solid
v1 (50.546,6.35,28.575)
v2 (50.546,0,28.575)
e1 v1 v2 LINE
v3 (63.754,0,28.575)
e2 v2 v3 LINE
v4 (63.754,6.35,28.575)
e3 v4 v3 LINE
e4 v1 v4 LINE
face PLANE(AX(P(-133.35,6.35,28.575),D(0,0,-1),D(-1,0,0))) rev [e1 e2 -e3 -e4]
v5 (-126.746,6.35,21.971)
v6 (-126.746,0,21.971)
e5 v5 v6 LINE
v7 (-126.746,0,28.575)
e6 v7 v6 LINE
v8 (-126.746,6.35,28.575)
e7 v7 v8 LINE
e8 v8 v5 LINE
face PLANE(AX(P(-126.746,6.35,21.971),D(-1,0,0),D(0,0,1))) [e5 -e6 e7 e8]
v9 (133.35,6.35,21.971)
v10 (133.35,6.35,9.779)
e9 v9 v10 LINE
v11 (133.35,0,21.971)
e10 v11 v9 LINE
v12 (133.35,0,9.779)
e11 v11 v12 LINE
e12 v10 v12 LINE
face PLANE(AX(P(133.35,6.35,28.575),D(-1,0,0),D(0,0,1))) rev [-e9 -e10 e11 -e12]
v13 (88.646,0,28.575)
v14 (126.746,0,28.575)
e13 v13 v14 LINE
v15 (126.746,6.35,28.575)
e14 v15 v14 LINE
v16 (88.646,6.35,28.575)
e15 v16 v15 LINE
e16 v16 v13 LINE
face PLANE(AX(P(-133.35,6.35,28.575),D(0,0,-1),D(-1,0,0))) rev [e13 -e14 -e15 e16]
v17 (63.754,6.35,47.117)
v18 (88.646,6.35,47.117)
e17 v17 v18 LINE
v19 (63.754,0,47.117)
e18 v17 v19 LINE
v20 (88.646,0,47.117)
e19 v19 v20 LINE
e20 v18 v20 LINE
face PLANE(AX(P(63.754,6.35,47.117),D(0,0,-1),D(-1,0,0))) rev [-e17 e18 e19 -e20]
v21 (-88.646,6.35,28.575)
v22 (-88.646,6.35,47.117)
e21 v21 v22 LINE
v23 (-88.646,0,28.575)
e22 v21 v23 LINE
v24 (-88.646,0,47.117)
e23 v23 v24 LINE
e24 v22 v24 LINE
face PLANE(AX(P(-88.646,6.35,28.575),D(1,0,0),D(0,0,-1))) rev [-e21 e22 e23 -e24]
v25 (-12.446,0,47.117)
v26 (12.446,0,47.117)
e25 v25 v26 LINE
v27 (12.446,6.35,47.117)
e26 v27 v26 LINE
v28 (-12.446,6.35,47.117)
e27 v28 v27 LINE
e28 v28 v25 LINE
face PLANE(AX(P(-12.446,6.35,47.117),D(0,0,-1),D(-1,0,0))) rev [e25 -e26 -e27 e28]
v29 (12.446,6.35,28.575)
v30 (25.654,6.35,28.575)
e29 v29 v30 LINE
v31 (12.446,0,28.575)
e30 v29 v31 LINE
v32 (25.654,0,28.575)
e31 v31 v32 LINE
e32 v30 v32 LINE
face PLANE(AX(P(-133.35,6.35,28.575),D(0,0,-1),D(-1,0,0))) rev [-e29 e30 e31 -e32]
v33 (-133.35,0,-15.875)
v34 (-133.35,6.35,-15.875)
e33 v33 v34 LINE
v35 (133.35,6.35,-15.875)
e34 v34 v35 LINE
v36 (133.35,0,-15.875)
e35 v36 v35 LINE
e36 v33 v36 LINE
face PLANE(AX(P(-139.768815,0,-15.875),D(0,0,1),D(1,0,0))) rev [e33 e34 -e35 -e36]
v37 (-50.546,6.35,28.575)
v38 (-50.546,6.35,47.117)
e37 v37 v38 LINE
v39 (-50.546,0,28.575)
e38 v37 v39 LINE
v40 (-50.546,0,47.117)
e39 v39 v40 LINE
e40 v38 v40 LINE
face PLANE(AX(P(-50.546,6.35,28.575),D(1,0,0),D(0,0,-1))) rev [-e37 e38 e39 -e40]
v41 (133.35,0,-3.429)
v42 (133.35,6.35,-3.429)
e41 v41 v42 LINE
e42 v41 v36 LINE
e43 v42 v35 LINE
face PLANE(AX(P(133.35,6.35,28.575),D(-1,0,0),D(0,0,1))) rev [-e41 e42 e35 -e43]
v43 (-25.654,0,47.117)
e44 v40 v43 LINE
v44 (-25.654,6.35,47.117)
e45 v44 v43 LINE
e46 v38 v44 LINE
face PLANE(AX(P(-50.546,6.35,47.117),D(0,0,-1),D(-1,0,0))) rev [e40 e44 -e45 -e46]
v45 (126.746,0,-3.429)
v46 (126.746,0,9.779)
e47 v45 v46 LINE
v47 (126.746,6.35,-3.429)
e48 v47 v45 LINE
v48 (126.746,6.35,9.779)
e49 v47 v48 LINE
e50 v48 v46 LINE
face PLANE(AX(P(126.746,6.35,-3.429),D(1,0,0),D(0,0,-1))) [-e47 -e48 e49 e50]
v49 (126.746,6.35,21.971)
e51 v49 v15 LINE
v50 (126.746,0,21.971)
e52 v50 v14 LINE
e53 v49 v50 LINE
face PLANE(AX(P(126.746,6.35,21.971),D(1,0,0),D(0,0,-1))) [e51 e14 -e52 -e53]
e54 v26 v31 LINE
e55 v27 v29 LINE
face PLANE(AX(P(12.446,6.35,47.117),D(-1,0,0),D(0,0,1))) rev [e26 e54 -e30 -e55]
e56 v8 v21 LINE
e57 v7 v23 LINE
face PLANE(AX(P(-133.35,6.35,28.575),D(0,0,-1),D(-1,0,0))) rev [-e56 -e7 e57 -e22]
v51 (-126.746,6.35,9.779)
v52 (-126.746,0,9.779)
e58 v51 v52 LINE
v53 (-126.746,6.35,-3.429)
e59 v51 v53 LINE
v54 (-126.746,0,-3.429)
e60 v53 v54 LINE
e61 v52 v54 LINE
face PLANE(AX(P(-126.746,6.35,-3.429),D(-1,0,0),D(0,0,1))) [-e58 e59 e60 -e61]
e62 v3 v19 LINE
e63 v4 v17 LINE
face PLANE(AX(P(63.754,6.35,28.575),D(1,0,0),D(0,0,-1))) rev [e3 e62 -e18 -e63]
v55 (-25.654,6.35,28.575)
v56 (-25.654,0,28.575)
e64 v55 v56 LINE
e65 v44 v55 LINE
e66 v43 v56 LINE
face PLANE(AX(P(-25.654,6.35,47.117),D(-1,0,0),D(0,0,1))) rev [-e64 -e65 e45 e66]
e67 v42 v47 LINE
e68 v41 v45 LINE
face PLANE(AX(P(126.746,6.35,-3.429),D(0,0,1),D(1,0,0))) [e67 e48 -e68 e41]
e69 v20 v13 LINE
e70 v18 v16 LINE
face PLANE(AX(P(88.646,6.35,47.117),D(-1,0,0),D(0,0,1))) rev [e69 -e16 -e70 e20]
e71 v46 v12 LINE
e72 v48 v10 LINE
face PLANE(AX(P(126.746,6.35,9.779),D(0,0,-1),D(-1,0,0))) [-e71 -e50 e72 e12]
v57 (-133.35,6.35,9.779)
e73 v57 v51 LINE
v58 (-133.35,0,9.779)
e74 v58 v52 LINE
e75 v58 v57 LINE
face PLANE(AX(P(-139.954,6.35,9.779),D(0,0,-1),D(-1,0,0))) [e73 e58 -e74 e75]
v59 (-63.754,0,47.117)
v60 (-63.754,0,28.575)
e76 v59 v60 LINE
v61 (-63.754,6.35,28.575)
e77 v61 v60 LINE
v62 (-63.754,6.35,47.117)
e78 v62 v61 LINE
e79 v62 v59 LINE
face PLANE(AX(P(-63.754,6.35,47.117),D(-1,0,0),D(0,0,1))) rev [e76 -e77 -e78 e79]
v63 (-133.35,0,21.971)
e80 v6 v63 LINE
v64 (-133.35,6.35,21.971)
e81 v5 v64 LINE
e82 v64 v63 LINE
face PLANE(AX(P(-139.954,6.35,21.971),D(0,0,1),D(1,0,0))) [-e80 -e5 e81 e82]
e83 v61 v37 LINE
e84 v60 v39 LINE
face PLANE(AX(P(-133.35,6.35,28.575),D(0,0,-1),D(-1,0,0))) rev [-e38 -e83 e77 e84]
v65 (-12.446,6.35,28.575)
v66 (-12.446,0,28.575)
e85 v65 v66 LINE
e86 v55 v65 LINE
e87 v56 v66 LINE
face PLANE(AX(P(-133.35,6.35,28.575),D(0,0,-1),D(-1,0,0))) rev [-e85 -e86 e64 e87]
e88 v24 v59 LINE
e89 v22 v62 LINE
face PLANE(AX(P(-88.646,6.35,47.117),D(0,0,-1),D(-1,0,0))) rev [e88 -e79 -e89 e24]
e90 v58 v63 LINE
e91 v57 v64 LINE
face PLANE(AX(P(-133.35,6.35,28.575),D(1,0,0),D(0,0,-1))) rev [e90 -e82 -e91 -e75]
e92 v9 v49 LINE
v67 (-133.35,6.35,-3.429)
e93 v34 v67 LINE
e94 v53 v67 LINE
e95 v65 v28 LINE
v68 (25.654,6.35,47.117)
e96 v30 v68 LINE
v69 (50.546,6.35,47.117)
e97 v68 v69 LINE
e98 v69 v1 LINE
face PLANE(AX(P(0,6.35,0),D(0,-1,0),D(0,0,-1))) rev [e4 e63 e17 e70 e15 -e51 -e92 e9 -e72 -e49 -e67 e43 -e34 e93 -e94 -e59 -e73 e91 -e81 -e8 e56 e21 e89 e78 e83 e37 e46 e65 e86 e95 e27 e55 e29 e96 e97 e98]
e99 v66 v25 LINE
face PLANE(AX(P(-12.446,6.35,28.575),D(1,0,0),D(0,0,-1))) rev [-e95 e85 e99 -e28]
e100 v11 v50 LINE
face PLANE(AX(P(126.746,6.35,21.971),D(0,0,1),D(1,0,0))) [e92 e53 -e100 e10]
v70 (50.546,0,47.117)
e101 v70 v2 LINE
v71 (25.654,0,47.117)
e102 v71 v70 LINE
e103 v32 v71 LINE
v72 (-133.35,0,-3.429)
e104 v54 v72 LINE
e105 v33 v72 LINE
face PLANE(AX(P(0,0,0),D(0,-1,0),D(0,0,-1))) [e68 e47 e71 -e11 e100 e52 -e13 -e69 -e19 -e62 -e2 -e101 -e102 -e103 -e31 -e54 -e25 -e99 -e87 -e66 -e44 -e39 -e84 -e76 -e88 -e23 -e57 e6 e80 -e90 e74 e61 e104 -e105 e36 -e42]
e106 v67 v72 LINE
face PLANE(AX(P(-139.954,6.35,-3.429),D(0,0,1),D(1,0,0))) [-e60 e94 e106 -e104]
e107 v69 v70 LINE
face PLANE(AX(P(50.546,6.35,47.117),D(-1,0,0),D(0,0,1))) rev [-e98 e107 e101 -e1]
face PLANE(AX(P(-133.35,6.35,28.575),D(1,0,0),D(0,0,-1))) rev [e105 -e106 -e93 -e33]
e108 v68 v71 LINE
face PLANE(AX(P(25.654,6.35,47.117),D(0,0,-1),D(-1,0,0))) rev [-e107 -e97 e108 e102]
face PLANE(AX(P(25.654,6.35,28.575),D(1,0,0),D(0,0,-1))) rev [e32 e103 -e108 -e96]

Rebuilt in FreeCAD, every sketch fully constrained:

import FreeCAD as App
import Part
import Sketcher

V = App.Vector
Q = App.Units.Quantity


def add_polygon(sketch, points):
    """Adds a closed chain of lines whose ends are joined by coincident constraints."""
    first, n = sketch.GeometryCount, len(points)
    for a, b in zip(points, points[1:] + points[:1]):
        sketch.addGeometry(Part.LineSegment(App.Vector(*a, 0), App.Vector(*b, 0)), False)
    for i in range(n):
        sketch.addConstraint(Sketcher.Constraint("Coincident", first + i, 2, first + (i + 1) % n, 1))

doc = App.newDocument("Part")
body = doc.addObject("PartDesign::Body", "Body")

sketch1 = doc.addObject("Sketcher::SketchObject", "Sketch")
body.addObject(sketch1)
sketch1.AttachmentSupport = (doc.XZ_Plane, [""])
sketch1.MapMode = "FlatFace"
add_polygon(sketch1, [(-133, -29), (-133, 29), (133, 29), (133, -29)])
sketch1.addConstraint(Sketcher.Constraint("Vertical", 0))
sketch1.addConstraint(Sketcher.Constraint("Horizontal", 1))
sketch1.addConstraint(Sketcher.Constraint("Vertical", 2))
sketch1.addConstraint(Sketcher.Constraint("Horizontal", 3))
sketch1.addConstraint(Sketcher.Constraint("Symmetric", 0, 2, 2, 2, -1, 1))
sketch1.addConstraint(Sketcher.Constraint("DistanceX", 1, 1, 1, 2, Q("10.5 in")))
sketch1.addConstraint(Sketcher.Constraint("DistanceY", 0, 1, 0, 2, Q("2.25 in")))
pad1 = doc.addObject("PartDesign::Pad", "Pad")
body.addObject(pad1)
pad1.Profile = sketch1
pad1.Length = Q("0.25 in")
pad1.Reversed = True

sketch2 = doc.addObject("Sketcher::SketchObject", "Sketch001")
body.addObject(sketch2)
sketch2.AttachmentSupport = (doc.XZ_Plane, [""])
sketch2.MapMode = "FlatFace"
add_polygon(sketch2, [(-89, 29), (-89, 47), (-64, 47), (-64, 29)])
add_polygon(sketch2, [(-51, 29), (-51, 47), (-26, 47), (-26, 29)])
add_polygon(sketch2, [(-12, 29), (-12, 47), (12, 47), (12, 29)])
add_polygon(sketch2, [(26, 29), (26, 47), (51, 47), (51, 29)])
add_polygon(sketch2, [(64, 29), (64, 47), (89, 47), (89, 29)])
sketch2.addConstraint(Sketcher.Constraint("Vertical", 0))
sketch2.addConstraint(Sketcher.Constraint("Horizontal", 1))
sketch2.addConstraint(Sketcher.Constraint("Vertical", 2))
sketch2.addConstraint(Sketcher.Constraint("Horizontal", 3))
sketch2.addConstraint(Sketcher.Constraint("Vertical", 4))
sketch2.addConstraint(Sketcher.Constraint("Horizontal", 5))
sketch2.addConstraint(Sketcher.Constraint("Vertical", 6))
sketch2.addConstraint(Sketcher.Constraint("Horizontal", 7))
sketch2.addConstraint(Sketcher.Constraint("Vertical", 8))
sketch2.addConstraint(Sketcher.Constraint("Horizontal", 9))
sketch2.addConstraint(Sketcher.Constraint("Vertical", 10))
sketch2.addConstraint(Sketcher.Constraint("Horizontal", 11))
sketch2.addConstraint(Sketcher.Constraint("Vertical", 12))
sketch2.addConstraint(Sketcher.Constraint("Horizontal", 13))
sketch2.addConstraint(Sketcher.Constraint("Vertical", 14))
sketch2.addConstraint(Sketcher.Constraint("Horizontal", 15))
sketch2.addConstraint(Sketcher.Constraint("Vertical", 16))
sketch2.addConstraint(Sketcher.Constraint("Horizontal", 17))
sketch2.addConstraint(Sketcher.Constraint("Vertical", 18))
sketch2.addConstraint(Sketcher.Constraint("Horizontal", 19))
sketch2.addConstraint(Sketcher.Constraint("Symmetric", 5, 2, 12, 2, -2))
sketch2.addConstraint(Sketcher.Constraint("Symmetric", 7, 2, 14, 2, -2))
sketch2.addConstraint(Sketcher.Constraint("Symmetric", 1, 2, 16, 2, -2))
sketch2.addConstraint(Sketcher.Constraint("Symmetric", 3, 2, 18, 2, -2))
sketch2.addConstraint(Sketcher.Constraint("Horizontal", 1, 2, 4, 2))
sketch2.addConstraint(Sketcher.Constraint("Horizontal", 3, 2, 6, 2))
sketch2.addConstraint(Sketcher.Constraint("Horizontal", 5, 2, 8, 2))
sketch2.addConstraint(Sketcher.Constraint("Horizontal", 7, 2, 10, 2))
sketch2.addConstraint(Sketcher.Constraint("Equal", 3, 5))
sketch2.addConstraint(Sketcher.Constraint("Equal", 7, 9))
sketch2.addConstraint(Sketcher.Constraint("DistanceX", 1, 1, 1, 2, Q("0.98 in")))
sketch2.addConstraint(Sketcher.Constraint("DistanceY", 0, 1, 0, 2, Q("0.73 in")))
sketch2.addConstraint(Sketcher.Constraint("DistanceX", 0, 2, 4, 2, Q("1.5 in")))
sketch2.addConstraint(Sketcher.Constraint("DistanceX", 4, 2, 8, 2, Q("1.5 in")))
sketch2.addConstraint(Sketcher.Constraint("DistanceX", 8, 2, 12, 2, Q("1.5 in")))
sketch2.addConstraint(Sketcher.Constraint("DistanceY", -1, 1, 0, 2, Q("1.855 in")))
pad2 = doc.addObject("PartDesign::Pad", "Pad001")
body.addObject(pad2)
pad2.Profile = sketch2
pad2.Length = Q("0.25 in")
pad2.Reversed = True

sketch3 = doc.addObject("Sketcher::SketchObject", "Sketch002")
body.addObject(sketch3)
sketch3.AttachmentSupport = (doc.XZ_Plane, [""])
sketch3.MapMode = "FlatFace"
add_polygon(sketch3, [(-140, -29), (-140, -16), (-127, -16), (-127, -29)])
add_polygon(sketch3, [(127, -29), (127, -16), (140, -16), (140, -29)])
add_polygon(sketch3, [(-140, -3), (-140, 10), (-127, 10), (-127, -3)])
add_polygon(sketch3, [(-140, 22), (-140, 35), (-127, 35), (-127, 22)])
add_polygon(sketch3, [(127, -3), (127, 10), (140, 10), (140, -3)])
add_polygon(sketch3, [(127, 22), (127, 35), (140, 35), (140, 22)])
sketch3.addConstraint(Sketcher.Constraint("Vertical", 0))
sketch3.addConstraint(Sketcher.Constraint("Horizontal", 1))
sketch3.addConstraint(Sketcher.Constraint("Vertical", 2))
sketch3.addConstraint(Sketcher.Constraint("Horizontal", 3))
sketch3.addConstraint(Sketcher.Constraint("Vertical", 4))
sketch3.addConstraint(Sketcher.Constraint("Horizontal", 5))
sketch3.addConstraint(Sketcher.Constraint("Vertical", 6))
sketch3.addConstraint(Sketcher.Constraint("Horizontal", 7))
sketch3.addConstraint(Sketcher.Constraint("Vertical", 8))
sketch3.addConstraint(Sketcher.Constraint("Horizontal", 9))
sketch3.addConstraint(Sketcher.Constraint("Vertical", 10))
sketch3.addConstraint(Sketcher.Constraint("Horizontal", 11))
sketch3.addConstraint(Sketcher.Constraint("Vertical", 12))
sketch3.addConstraint(Sketcher.Constraint("Horizontal", 13))
sketch3.addConstraint(Sketcher.Constraint("Vertical", 14))
sketch3.addConstraint(Sketcher.Constraint("Horizontal", 15))
sketch3.addConstraint(Sketcher.Constraint("Vertical", 16))
sketch3.addConstraint(Sketcher.Constraint("Horizontal", 17))
sketch3.addConstraint(Sketcher.Constraint("Vertical", 18))
sketch3.addConstraint(Sketcher.Constraint("Horizontal", 19))
sketch3.addConstraint(Sketcher.Constraint("Vertical", 20))
sketch3.addConstraint(Sketcher.Constraint("Horizontal", 21))
sketch3.addConstraint(Sketcher.Constraint("Vertical", 22))
sketch3.addConstraint(Sketcher.Constraint("Horizontal", 23))
sketch3.addConstraint(Sketcher.Constraint("Symmetric", 1, 2, 4, 2, -2))
sketch3.addConstraint(Sketcher.Constraint("Symmetric", 3, 2, 6, 2, -2))
sketch3.addConstraint(Sketcher.Constraint("Symmetric", 9, 2, 16, 2, -2))
sketch3.addConstraint(Sketcher.Constraint("Symmetric", 11, 2, 18, 2, -2))
sketch3.addConstraint(Sketcher.Constraint("Symmetric", 13, 2, 20, 2, -2))
sketch3.addConstraint(Sketcher.Constraint("Symmetric", 15, 2, 22, 2, -2))
sketch3.addConstraint(Sketcher.Constraint("Vertical", 3, 2, 8, 2))
sketch3.addConstraint(Sketcher.Constraint("Vertical", 2, 2, 9, 2))
sketch3.addConstraint(Sketcher.Constraint("Vertical", 11, 2, 12, 2))
sketch3.addConstraint(Sketcher.Constraint("Vertical", 10, 2, 13, 2))
sketch3.addConstraint(Sketcher.Constraint("Equal", 23, 0))
sketch3.addConstraint(Sketcher.Constraint("Equal", 6, 8))
sketch3.addConstraint(Sketcher.Constraint("Equal", 10, 12))
sketch3.addConstraint(Sketcher.Constraint("DistanceY", 0, 2, 8, 2, Q("1 in")))
sketch3.addConstraint(Sketcher.Constraint("DistanceY", 8, 2, 12, 2, Q("1 in")))
sketch3.addConstraint(Sketcher.Constraint("DistanceX", 1, 1, 1, 2, Q("0.52 in")))
sketch3.addConstraint(Sketcher.Constraint("DistanceX", 0, 2, 4, 2, Q("10.5 in")))
sketch3.addConstraint(Sketcher.Constraint("DistanceY", 0, 2, -1, 1, Q("0.615 in")))
pocket1 = doc.addObject("PartDesign::Pocket", "Pocket")
body.addObject(pocket1)
pocket1.Profile = sketch3
pocket1.Type = "ThroughAll"

sketch4 = doc.addObject("Sketcher::SketchObject", "Sketch003")
body.addObject(sketch4)
sketch4.AttachmentSupport = (doc.XZ_Plane, [""])
sketch4.MapMode = "FlatFace"
sketch4.AttachmentOffset = App.Placement(V(0, 0, -0.25 * 25.4), App.Rotation())
add_polygon(sketch4, [(-140, -29), (-140, -16), (156, -16), (156, -29)])
sketch4.addConstraint(Sketcher.Constraint("Vertical", 0))
sketch4.addConstraint(Sketcher.Constraint("Horizontal", 1))
sketch4.addConstraint(Sketcher.Constraint("Vertical", 2))
sketch4.addConstraint(Sketcher.Constraint("Horizontal", 3))
sketch4.addConstraint(Sketcher.Constraint("DistanceY", 0, 1, 0, 2, Q("0.5 in")))
sketch4.addConstraint(Sketcher.Constraint("DistanceY", 0, 2, -1, 1, Q("0.625 in")))
sketch4.addConstraint(Sketcher.Constraint("DistanceX", 1, 1, 1, 2, 295.464136))
sketch4.addConstraint(Sketcher.Constraint("DistanceX", -1, 1, 1, 2, 155.695321))
pocket2 = doc.addObject("PartDesign::Pocket", "Pocket001")
body.addObject(pocket2)
pocket2.Profile = sketch4
pocket2.Type = "ThroughAll"
pocket2.Reversed = True

sketch5 = doc.addObject("Sketcher::SketchObject", "Sketch004")
body.addObject(sketch5)
sketch5.AttachmentSupport = (doc.XZ_Plane, [""])
sketch5.MapMode = "FlatFace"
sketch5.AttachmentOffset = App.Placement(V(0, 0, -0.25 * 25.4), App.Rotation())
add_polygon(sketch5, [(-133, -16), (-133, -3), (133, -3), (133, -16)])
sketch5.addConstraint(Sketcher.Constraint("Vertical", 0))
sketch5.addConstraint(Sketcher.Constraint("Horizontal", 1))
sketch5.addConstraint(Sketcher.Constraint("Vertical", 2))
sketch5.addConstraint(Sketcher.Constraint("Horizontal", 3))
sketch5.addConstraint(Sketcher.Constraint("DistanceX", 1, 1, 1, 2, Q("10.5 in")))
sketch5.addConstraint(Sketcher.Constraint("DistanceY", 0, 1, 0, 2, Q("0.49 in")))
sketch5.addConstraint(Sketcher.Constraint("DistanceX", 0, 2, -1, 1, Q("5.25 in")))
sketch5.addConstraint(Sketcher.Constraint("DistanceY", 0, 2, -1, 1, Q("0.135 in")))
pad3 = doc.addObject("PartDesign::Pad", "Pad002")
body.addObject(pad3)
pad3.Profile = sketch5
pad3.Length = Q("0.25 in")

doc.recompute()
